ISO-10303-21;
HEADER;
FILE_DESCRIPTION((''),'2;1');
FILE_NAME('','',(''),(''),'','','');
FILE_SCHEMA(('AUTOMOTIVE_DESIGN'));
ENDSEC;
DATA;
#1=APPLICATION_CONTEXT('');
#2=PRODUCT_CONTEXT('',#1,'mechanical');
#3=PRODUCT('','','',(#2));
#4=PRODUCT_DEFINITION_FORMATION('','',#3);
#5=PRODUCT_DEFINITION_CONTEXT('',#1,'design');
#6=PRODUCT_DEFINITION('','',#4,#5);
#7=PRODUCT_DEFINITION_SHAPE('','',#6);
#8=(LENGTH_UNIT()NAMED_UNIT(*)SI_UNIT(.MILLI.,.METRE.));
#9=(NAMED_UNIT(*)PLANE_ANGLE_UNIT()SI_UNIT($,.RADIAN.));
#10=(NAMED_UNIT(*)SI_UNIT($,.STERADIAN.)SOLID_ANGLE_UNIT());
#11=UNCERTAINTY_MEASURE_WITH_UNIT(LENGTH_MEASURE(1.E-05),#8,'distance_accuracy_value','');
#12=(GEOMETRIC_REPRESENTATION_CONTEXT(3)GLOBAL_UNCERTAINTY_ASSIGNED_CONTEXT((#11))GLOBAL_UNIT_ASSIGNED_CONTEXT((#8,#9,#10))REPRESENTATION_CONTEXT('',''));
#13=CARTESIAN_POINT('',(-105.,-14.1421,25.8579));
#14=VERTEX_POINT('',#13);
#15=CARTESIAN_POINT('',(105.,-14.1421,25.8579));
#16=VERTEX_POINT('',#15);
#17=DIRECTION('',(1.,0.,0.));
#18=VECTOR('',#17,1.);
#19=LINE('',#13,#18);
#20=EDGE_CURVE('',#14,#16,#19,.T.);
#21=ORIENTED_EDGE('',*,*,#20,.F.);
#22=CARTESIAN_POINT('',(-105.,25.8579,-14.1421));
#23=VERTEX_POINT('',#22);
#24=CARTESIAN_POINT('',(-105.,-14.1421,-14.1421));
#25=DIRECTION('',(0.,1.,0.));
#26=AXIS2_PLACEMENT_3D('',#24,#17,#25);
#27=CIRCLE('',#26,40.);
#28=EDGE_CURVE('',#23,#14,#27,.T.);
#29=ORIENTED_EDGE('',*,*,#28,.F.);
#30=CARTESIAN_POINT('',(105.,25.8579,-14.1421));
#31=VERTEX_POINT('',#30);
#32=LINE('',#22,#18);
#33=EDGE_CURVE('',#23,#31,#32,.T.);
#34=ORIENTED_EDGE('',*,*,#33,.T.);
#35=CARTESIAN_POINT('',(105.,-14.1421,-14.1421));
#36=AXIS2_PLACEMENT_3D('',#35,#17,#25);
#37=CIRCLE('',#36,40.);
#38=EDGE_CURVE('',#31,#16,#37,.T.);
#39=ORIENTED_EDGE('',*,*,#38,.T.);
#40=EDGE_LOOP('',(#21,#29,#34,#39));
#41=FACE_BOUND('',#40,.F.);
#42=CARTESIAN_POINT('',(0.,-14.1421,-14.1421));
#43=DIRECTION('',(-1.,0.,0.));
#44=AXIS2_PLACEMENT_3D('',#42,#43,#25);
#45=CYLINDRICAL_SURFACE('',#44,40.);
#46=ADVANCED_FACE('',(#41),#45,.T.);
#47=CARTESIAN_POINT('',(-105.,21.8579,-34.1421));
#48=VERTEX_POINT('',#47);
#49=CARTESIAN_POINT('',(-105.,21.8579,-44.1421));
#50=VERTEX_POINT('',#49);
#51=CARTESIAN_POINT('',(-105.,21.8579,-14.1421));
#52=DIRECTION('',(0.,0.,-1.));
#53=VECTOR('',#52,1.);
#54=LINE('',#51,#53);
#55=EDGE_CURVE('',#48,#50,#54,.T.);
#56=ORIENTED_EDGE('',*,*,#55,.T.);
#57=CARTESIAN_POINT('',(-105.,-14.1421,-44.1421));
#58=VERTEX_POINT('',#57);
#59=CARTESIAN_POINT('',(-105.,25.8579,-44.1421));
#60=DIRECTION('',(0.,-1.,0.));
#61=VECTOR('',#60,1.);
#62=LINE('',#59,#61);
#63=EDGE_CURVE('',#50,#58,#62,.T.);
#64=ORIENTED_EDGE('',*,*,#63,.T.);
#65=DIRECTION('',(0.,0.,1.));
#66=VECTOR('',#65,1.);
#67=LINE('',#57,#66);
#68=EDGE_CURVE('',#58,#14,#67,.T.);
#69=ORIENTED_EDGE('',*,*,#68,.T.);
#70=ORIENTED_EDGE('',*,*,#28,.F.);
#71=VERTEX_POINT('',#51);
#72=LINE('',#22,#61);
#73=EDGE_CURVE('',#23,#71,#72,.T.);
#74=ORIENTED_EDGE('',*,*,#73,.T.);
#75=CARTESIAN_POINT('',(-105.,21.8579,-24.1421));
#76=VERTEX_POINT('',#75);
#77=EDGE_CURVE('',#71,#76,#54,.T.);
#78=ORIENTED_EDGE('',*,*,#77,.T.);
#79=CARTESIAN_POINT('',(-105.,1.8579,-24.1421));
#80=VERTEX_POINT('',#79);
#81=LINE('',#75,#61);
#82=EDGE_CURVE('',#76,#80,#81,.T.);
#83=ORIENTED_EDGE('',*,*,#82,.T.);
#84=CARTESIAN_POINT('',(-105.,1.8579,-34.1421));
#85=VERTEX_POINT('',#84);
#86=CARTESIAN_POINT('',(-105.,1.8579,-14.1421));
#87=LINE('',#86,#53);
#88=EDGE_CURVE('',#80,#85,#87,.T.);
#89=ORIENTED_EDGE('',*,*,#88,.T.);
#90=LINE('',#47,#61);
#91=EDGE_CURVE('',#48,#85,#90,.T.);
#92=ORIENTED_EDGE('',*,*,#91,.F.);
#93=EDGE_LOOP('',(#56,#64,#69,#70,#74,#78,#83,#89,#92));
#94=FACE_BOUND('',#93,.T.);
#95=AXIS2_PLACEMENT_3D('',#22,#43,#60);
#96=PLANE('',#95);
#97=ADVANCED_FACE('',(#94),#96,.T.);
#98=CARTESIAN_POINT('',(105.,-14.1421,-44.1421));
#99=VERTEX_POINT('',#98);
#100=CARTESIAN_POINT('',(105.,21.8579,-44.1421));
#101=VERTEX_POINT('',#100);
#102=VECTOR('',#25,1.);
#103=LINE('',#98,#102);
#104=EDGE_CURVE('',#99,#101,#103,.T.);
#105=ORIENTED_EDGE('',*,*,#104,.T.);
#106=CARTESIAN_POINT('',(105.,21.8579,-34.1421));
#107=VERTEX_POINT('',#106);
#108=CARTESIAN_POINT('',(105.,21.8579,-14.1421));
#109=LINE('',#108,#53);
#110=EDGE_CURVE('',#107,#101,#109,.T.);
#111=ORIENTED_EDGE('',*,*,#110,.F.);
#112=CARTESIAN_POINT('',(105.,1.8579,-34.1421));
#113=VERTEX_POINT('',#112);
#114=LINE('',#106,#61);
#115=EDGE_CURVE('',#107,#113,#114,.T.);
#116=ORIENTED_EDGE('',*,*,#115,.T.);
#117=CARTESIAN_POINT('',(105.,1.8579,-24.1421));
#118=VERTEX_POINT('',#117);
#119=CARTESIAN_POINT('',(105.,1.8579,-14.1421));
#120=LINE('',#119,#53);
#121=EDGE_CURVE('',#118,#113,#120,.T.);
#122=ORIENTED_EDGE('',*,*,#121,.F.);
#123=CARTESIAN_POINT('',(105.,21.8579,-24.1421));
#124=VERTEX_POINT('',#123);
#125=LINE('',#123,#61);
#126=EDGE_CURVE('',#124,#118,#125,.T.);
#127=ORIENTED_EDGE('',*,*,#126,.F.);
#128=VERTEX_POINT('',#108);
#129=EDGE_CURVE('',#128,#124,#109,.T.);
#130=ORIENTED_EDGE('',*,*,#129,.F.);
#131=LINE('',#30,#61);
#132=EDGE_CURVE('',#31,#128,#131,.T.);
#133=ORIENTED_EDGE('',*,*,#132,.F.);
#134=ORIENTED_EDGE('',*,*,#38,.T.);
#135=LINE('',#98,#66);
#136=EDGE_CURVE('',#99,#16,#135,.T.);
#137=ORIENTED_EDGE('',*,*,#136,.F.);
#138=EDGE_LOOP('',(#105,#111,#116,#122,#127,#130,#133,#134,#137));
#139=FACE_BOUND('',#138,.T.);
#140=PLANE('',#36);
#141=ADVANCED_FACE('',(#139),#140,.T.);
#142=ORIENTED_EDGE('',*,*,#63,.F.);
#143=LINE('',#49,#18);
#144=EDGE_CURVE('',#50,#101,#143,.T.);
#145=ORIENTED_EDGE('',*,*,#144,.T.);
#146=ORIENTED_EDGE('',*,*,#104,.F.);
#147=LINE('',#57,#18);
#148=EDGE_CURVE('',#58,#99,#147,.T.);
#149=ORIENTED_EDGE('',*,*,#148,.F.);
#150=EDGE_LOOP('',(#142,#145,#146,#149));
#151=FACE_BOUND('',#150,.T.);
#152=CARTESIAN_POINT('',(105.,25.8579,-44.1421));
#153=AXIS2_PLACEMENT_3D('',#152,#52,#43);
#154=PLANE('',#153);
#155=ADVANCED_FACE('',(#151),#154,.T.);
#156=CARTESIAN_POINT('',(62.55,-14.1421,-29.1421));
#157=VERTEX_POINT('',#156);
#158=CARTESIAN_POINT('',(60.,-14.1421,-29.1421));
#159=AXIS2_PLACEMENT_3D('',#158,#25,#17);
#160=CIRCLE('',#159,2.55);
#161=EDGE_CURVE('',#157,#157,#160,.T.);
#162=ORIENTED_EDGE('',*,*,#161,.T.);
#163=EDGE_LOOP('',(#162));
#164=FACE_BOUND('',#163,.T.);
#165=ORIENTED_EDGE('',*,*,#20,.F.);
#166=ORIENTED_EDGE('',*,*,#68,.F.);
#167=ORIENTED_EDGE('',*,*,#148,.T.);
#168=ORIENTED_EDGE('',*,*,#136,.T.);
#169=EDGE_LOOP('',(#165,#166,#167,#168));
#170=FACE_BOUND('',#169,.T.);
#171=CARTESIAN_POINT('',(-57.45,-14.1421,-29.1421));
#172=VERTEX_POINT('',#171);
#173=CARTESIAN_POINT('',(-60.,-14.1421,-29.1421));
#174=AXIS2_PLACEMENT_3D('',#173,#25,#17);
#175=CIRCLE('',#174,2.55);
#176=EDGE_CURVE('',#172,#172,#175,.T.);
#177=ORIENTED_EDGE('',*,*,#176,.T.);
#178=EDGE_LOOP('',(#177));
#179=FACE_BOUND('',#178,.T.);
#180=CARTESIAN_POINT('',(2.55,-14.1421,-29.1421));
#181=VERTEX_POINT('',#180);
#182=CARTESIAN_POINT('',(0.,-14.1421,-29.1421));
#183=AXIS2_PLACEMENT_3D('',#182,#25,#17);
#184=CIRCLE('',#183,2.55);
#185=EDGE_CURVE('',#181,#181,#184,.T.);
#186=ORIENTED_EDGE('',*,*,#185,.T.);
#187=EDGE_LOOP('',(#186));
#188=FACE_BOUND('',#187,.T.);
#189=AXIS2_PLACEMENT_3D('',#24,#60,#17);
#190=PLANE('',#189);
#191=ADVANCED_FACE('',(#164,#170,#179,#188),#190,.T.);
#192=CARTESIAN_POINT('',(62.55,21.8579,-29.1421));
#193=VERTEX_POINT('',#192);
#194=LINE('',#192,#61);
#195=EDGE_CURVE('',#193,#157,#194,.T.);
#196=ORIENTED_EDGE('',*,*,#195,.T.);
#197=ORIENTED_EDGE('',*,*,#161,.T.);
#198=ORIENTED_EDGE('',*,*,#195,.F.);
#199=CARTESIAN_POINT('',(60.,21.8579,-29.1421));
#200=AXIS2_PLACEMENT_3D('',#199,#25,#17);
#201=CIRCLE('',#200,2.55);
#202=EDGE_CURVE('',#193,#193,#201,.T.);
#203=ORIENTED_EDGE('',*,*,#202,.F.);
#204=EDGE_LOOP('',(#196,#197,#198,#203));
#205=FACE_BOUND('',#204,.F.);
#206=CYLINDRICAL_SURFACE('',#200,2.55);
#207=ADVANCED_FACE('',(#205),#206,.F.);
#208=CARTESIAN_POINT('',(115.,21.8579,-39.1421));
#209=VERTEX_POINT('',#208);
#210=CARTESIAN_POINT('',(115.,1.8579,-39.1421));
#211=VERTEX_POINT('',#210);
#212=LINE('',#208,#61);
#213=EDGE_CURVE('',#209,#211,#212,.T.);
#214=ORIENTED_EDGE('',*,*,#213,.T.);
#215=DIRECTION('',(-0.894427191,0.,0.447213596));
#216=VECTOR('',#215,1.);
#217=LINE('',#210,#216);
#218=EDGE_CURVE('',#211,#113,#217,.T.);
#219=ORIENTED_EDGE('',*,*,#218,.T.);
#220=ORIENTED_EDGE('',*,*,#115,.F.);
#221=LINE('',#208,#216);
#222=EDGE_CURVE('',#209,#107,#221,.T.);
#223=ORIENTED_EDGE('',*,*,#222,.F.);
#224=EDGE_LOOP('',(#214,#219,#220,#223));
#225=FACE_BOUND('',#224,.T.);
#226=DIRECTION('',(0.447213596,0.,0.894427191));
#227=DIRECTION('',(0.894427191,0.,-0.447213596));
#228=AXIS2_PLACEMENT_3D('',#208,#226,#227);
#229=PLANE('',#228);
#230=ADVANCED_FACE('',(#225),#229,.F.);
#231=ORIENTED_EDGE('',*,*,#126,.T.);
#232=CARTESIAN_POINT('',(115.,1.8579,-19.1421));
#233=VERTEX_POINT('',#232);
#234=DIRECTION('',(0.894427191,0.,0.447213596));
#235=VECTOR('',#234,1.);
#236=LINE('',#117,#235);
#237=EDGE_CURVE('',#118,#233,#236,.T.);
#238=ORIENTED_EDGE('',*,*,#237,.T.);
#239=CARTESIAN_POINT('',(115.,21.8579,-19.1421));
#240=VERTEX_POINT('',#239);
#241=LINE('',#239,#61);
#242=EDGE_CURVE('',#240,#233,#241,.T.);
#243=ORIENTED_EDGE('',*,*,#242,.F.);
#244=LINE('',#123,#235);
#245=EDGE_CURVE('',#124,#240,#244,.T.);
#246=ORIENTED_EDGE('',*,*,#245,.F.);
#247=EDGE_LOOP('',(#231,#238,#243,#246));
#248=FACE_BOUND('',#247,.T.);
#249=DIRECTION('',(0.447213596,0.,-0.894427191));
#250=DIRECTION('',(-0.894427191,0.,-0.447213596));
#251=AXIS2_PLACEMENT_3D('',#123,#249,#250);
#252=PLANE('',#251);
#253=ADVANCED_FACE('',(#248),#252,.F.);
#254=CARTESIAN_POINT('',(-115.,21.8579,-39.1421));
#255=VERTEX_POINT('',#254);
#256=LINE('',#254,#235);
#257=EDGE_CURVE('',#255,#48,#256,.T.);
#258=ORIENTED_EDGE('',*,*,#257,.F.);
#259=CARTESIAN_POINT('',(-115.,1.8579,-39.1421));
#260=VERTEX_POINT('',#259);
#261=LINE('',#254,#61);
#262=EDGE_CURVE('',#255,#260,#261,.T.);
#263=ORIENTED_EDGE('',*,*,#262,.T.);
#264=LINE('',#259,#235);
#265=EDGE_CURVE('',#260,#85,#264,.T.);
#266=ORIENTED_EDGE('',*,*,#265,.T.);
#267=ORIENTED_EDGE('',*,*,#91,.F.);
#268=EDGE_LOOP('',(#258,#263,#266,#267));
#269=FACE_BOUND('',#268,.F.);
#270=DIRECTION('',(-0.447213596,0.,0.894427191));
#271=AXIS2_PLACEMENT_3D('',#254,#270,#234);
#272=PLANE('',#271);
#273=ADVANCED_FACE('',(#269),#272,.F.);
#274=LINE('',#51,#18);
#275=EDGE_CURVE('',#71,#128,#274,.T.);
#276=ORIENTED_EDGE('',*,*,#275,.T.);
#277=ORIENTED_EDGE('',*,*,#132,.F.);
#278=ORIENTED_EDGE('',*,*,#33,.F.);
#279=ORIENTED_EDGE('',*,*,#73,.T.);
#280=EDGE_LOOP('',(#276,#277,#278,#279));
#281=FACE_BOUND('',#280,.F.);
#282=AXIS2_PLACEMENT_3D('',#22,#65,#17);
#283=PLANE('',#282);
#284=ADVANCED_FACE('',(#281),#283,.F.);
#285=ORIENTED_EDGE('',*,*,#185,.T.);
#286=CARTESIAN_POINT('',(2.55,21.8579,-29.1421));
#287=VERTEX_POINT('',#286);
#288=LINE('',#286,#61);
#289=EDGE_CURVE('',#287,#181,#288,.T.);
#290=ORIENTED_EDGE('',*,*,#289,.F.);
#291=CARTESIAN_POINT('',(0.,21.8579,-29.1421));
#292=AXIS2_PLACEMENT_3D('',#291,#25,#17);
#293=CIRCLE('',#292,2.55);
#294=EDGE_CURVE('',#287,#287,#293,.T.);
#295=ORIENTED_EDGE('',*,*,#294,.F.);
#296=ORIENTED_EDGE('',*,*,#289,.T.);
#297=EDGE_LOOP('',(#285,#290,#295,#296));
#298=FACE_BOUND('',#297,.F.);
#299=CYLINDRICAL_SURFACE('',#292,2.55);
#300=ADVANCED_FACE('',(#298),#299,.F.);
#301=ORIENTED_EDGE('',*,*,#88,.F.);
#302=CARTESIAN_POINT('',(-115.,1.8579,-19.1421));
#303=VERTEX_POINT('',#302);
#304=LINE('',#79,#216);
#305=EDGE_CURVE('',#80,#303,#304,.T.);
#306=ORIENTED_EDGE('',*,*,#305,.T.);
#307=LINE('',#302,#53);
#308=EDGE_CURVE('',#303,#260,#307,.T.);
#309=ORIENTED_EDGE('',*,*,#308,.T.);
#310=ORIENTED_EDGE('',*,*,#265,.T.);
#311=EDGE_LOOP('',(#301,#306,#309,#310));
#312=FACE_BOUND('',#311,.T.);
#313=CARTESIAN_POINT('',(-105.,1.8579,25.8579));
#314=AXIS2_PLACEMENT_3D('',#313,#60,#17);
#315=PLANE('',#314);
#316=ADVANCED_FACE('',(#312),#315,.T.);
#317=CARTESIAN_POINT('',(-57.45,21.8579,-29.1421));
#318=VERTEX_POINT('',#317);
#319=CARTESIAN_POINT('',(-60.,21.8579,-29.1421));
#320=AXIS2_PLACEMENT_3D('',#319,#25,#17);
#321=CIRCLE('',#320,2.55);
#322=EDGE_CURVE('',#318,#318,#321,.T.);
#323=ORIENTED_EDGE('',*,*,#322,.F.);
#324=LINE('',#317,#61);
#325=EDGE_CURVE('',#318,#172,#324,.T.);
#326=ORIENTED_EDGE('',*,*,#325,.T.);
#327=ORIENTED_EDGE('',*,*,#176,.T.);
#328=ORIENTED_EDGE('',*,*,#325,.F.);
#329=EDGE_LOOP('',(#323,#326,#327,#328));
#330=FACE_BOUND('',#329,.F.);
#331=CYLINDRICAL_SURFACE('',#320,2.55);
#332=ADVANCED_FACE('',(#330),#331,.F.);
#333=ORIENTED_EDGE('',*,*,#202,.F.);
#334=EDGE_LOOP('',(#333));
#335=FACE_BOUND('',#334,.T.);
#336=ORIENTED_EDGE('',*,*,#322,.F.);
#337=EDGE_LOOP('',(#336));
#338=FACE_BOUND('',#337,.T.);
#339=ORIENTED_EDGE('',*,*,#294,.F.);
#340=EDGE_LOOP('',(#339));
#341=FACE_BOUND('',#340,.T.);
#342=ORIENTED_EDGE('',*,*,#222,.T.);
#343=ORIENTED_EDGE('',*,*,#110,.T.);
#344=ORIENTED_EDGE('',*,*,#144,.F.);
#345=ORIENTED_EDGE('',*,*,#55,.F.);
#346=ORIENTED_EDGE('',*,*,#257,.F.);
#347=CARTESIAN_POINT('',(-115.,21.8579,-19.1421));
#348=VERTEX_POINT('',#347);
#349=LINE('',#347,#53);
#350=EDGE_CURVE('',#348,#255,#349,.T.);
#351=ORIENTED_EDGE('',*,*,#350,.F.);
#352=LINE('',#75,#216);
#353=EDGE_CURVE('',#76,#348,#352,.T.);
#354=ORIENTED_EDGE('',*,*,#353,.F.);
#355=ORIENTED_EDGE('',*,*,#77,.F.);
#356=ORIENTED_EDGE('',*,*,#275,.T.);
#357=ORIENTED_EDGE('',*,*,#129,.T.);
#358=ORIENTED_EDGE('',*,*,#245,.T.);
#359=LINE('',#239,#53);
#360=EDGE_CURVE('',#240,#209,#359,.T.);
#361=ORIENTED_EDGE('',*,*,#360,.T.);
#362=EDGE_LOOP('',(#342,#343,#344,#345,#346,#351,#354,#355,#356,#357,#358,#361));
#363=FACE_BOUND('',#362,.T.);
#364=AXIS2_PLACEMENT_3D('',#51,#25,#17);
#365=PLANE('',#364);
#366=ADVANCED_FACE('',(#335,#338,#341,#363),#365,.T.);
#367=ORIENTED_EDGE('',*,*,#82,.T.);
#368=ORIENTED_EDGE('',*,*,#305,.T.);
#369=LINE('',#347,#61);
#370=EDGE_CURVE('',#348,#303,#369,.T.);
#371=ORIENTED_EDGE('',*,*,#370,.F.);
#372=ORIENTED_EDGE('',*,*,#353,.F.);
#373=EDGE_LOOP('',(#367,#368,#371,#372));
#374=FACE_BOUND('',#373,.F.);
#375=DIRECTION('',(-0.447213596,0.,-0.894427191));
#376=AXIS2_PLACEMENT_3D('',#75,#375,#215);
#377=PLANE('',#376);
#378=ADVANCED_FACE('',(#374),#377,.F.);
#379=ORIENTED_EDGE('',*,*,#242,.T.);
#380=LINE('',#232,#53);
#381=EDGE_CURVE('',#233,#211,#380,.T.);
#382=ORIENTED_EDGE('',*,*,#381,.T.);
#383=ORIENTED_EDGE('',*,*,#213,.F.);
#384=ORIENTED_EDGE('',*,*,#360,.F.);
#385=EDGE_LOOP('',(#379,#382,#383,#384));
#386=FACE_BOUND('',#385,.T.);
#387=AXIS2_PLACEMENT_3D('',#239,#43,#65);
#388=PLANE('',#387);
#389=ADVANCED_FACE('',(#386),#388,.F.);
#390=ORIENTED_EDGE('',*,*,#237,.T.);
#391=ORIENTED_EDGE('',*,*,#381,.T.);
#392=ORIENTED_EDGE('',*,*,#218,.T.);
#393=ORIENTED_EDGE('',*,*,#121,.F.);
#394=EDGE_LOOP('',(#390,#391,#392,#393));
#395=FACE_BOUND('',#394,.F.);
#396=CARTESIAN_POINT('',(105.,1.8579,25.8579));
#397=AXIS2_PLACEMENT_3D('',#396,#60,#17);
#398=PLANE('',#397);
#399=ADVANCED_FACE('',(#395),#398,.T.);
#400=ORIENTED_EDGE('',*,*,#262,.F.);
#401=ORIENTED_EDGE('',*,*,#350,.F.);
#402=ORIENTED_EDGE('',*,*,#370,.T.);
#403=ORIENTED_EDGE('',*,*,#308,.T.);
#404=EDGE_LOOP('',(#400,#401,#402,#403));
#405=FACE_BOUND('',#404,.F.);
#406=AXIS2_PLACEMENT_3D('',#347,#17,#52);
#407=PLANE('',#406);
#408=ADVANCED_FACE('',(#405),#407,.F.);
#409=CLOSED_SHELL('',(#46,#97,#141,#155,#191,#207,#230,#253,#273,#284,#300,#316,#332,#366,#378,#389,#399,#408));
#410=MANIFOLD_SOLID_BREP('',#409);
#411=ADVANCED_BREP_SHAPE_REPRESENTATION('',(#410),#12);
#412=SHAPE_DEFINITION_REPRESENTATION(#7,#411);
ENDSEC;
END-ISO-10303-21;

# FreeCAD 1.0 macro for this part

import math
import FreeCAD as App
import Part
import Sketcher
from FreeCAD import Vector
Q = App.Units.Quantity

doc = App.newDocument("Part")
params = doc.addObject("Spreadsheet::Sheet", "Params")
for row, (alias, value) in enumerate([
    ("sketch1_radius", "40 mm"),
    ("pad1_length", "210 mm"),
    ("sketch2_width", "210 mm"),
    ("sketch2_height", "40 mm"),
    ("pad2_length", "30 mm"),
    ("sketch3_width", "210 mm"),
    ("sketch3_height", "30 mm"),
    ("pocket1_length", "4 mm"),
    ("sketch4_diameter", "5.1 mm"),
    ("sketch5_height", "20 mm"),
    ("sketch5_height2", "10 mm"),
    ("pad3_length", "20 mm"),
], start=1):
    params.set(f"A{row}", alias)
    params.set(f"B{row}", "=" + value)
    params.setAlias(f"B{row}", alias)

body = doc.addObject("PartDesign::Body", "Body")

# Sketch on YZ plane
sketch1 = body.newObject("Sketcher::SketchObject", "Sketch")
sketch1.AttachmentSupport = (doc.getObject("YZ_Plane"), [""])
sketch1.MapMode = "FlatFace"
sketch1.addGeometry([
    Part.LineSegment(Vector(-14, -14, 0), Vector(26, -14, 0)),
    Part.ArcOfCircle(Part.Circle(Vector(-14, -14, 0), Vector(0, 0, 1), 40), math.radians(0), math.radians(90)),
    Part.LineSegment(Vector(-14, 26, 0), Vector(-14, -14, 0)),
], False)
sketch1.addConstraint([
    Sketcher.Constraint("Coincident", 0, 2, 1, 1),
    Sketcher.Constraint("Coincident", 1, 2, 2, 1),
    Sketcher.Constraint("Coincident", 2, 2, 0, 1),
    Sketcher.Constraint("Horizontal", 0),
    Sketcher.Constraint("Vertical", 2),
    Sketcher.Constraint("Coincident", 2, 2, 1, 3),
    Sketcher.Constraint("Radius", 1, Q("40 mm")),
    Sketcher.Constraint("DistanceX", 1, 3, -1, 1, Q("14.142 mm")),
    Sketcher.Constraint("DistanceY", 1, 3, -1, 1, Q("14.142 mm")),
])
sketch1.setExpression("Constraints[6]", "Params.sketch1_radius")
pad1 = body.newObject("PartDesign::Pad", "Pad")
pad1.Profile = sketch1
pad1.setExpression("Length", "Params.pad1_length")
pad1.Midplane = True

# Sketch on XY plane
sketch2 = body.newObject("Sketcher::SketchObject", "Sketch001")
sketch2.AttachmentSupport = (doc.getObject("XY_Plane"), [""])
sketch2.MapMode = "FlatFace"
sketch2.AttachmentOffset = App.Placement(Vector(0, 0, -14.1421), App.Rotation())
sketch2.addGeometry([
    Part.LineSegment(Vector(-105, -14, 0), Vector(-105, 26, 0)),
    Part.LineSegment(Vector(-105, 26, 0), Vector(105, 26, 0)),
    Part.LineSegment(Vector(105, 26, 0), Vector(105, -14, 0)),
    Part.LineSegment(Vector(105, -14, 0), Vector(-105, -14, 0)),
], False)
sketch2.addConstraint([
    Sketcher.Constraint("Coincident", 0, 2, 1, 1),
    Sketcher.Constraint("Coincident", 1, 2, 2, 1),
    Sketcher.Constraint("Coincident", 2, 2, 3, 1),
    Sketcher.Constraint("Coincident", 3, 2, 0, 1),
    Sketcher.Constraint("Vertical", 0),
    Sketcher.Constraint("Horizontal", 1),
    Sketcher.Constraint("Vertical", 2),
    Sketcher.Constraint("Horizontal", 3),
    Sketcher.Constraint("DistanceX", 1, 1, 1, 2, Q("210 mm")),
    Sketcher.Constraint("DistanceY", 0, 1, 0, 2, Q("40 mm")),
    Sketcher.Constraint("DistanceX", 0, 2, -1, 1, Q("105 mm")),
    Sketcher.Constraint("DistanceY", -1, 1, 0, 2, Q("25.858 mm")),
])
sketch2.setExpression("Constraints[8]", "Params.sketch2_width")
sketch2.setExpression("Constraints[9]", "Params.sketch2_height")
pad2 = body.newObject("PartDesign::Pad", "Pad001")
pad2.Profile = sketch2
pad2.setExpression("Length", "Params.pad2_length")
pad2.Reversed = True

# Sketch on XZ plane
sketch3 = body.newObject("Sketcher::SketchObject", "Sketch002")
sketch3.AttachmentSupport = (doc.getObject("XZ_Plane"), [""])
sketch3.MapMode = "FlatFace"
sketch3.AttachmentOffset = App.Placement(Vector(0, 0, -25.8579), App.Rotation())
sketch3.addGeometry([
    Part.LineSegment(Vector(-105, -44, 0), Vector(-105, -14, 0)),
    Part.LineSegment(Vector(-105, -14, 0), Vector(105, -14, 0)),
    Part.LineSegment(Vector(105, -14, 0), Vector(105, -44, 0)),
    Part.LineSegment(Vector(105, -44, 0), Vector(-105, -44, 0)),
], False)
sketch3.addConstraint([
    Sketcher.Constraint("Coincident", 0, 2, 1, 1),
    Sketcher.Constraint("Coincident", 1, 2, 2, 1),
    Sketcher.Constraint("Coincident", 2, 2, 3, 1),
    Sketcher.Constraint("Coincident", 3, 2, 0, 1),
    Sketcher.Constraint("Vertical", 0),
    Sketcher.Constraint("Horizontal", 1),
    Sketcher.Constraint("Vertical", 2),
    Sketcher.Constraint("Horizontal", 3),
    Sketcher.Constraint("DistanceX", 1, 1, 1, 2, Q("210 mm")),
    Sketcher.Constraint("DistanceY", 0, 1, 0, 2, Q("30 mm")),
    Sketcher.Constraint("DistanceX", 0, 2, -1, 1, Q("105 mm")),
    Sketcher.Constraint("DistanceY", 0, 2, -1, 1, Q("14.142 mm")),
])
sketch3.setExpression("Constraints[8]", "Params.sketch3_width")
sketch3.setExpression("Constraints[9]", "Params.sketch3_height")
pocket1 = body.newObject("PartDesign::Pocket", "Pocket")
pocket1.Profile = sketch3
pocket1.setExpression("Length", "Params.pocket1_length")
pocket1.Reversed = True

# Sketch on XZ plane
sketch4 = body.newObject("Sketcher::SketchObject", "Sketch003")
sketch4.AttachmentSupport = (doc.getObject("XZ_Plane"), [""])
sketch4.MapMode = "FlatFace"
sketch4.AttachmentOffset = App.Placement(Vector(0, 0, -21.8579), App.Rotation())
sketch4.addGeometry([
    Part.Circle(Vector(-60, -29.1, 0), Vector(0, 0, 1), 2.5),
    Part.Circle(Vector(0, -29.1, 0), Vector(0, 0, 1), 2.5),
    Part.Circle(Vector(60, -29.1, 0), Vector(0, 0, 1), 2.5),
], False)
sketch4.addConstraint([
    Sketcher.Constraint("Equal", 0, 1),
    Sketcher.Constraint("Equal", 1, 2),
    Sketcher.Constraint("Symmetric", 0, 3, 2, 3, -2),
    Sketcher.Constraint("PointOnObject", 1, 3, -2),
    Sketcher.Constraint("Horizontal", 0, 3, 1, 3),
    Sketcher.Constraint("Diameter", 0, Q("5.1 mm")),
    Sketcher.Constraint("DistanceX", 0, 3, -1, 1, Q("60 mm")),
    Sketcher.Constraint("DistanceY", 0, 3, -1, 1, Q("29.142 mm")),
])
sketch4.setExpression("Constraints[5]", "Params.sketch4_diameter")
pocket2 = body.newObject("PartDesign::Pocket", "Pocket001")
pocket2.Profile = sketch4
pocket2.Type = "UpToFirst"
pocket2.Reversed = True

# Sketch on XZ plane
sketch5 = body.newObject("Sketcher::SketchObject", "Sketch004")
sketch5.AttachmentSupport = (doc.getObject("XZ_Plane"), [""])
sketch5.MapMode = "FlatFace"
sketch5.AttachmentOffset = App.Placement(Vector(0, 0, -21.8579), App.Rotation())
sketch5.addGeometry([
    Part.LineSegment(Vector(-115, -19, 0), Vector(-115, -39, 0)),
    Part.LineSegment(Vector(-115, -39, 0), Vector(-105, -34, 0)),
    Part.LineSegment(Vector(-105, -34, 0), Vector(-105, -24, 0)),
    Part.LineSegment(Vector(-105, -24, 0), Vector(-115, -19, 0)),
], False)
sketch5.addConstraint([
    Sketcher.Constraint("Coincident", 0, 2, 1, 1),
    Sketcher.Constraint("Coincident", 1, 2, 2, 1),
    Sketcher.Constraint("Coincident", 2, 2, 3, 1),
    Sketcher.Constraint("Coincident", 3, 2, 0, 1),
    Sketcher.Constraint("Vertical", 0),
    Sketcher.Constraint("Vertical", 2),
    Sketcher.Constraint("Equal", 1, 3),
    Sketcher.Constraint("DistanceY", 0, 2, 0, 1, Q("20 mm")),
    Sketcher.Constraint("DistanceY", 2, 1, 2, 2, Q("10 mm")),
    Sketcher.Constraint("DistanceX", 0, 2, -1, 1, Q("115 mm")),
    Sketcher.Constraint("DistanceX", 1, 2, -1, 1, Q("105 mm")),
    Sketcher.Constraint("DistanceY", 0, 2, -1, 1, Q("39.142 mm")),
])
sketch5.setExpression("Constraints[7]", "Params.sketch5_height")
sketch5.setExpression("Constraints[8]", "Params.sketch5_height2")
pad3 = body.newObject("PartDesign::Pad", "Pad002")
pad3.Profile = sketch5
pad3.setExpression("Length", "Params.pad3_length")
doc.recompute()

mirrored = body.newObject("PartDesign::Mirrored", "Mirrored")
mirrored.Originals = [pad3]
mirrored.MirrorPlane = (doc.getObject("YZ_Plane"), [""])
body.Tip = mirrored

doc.recompute()
